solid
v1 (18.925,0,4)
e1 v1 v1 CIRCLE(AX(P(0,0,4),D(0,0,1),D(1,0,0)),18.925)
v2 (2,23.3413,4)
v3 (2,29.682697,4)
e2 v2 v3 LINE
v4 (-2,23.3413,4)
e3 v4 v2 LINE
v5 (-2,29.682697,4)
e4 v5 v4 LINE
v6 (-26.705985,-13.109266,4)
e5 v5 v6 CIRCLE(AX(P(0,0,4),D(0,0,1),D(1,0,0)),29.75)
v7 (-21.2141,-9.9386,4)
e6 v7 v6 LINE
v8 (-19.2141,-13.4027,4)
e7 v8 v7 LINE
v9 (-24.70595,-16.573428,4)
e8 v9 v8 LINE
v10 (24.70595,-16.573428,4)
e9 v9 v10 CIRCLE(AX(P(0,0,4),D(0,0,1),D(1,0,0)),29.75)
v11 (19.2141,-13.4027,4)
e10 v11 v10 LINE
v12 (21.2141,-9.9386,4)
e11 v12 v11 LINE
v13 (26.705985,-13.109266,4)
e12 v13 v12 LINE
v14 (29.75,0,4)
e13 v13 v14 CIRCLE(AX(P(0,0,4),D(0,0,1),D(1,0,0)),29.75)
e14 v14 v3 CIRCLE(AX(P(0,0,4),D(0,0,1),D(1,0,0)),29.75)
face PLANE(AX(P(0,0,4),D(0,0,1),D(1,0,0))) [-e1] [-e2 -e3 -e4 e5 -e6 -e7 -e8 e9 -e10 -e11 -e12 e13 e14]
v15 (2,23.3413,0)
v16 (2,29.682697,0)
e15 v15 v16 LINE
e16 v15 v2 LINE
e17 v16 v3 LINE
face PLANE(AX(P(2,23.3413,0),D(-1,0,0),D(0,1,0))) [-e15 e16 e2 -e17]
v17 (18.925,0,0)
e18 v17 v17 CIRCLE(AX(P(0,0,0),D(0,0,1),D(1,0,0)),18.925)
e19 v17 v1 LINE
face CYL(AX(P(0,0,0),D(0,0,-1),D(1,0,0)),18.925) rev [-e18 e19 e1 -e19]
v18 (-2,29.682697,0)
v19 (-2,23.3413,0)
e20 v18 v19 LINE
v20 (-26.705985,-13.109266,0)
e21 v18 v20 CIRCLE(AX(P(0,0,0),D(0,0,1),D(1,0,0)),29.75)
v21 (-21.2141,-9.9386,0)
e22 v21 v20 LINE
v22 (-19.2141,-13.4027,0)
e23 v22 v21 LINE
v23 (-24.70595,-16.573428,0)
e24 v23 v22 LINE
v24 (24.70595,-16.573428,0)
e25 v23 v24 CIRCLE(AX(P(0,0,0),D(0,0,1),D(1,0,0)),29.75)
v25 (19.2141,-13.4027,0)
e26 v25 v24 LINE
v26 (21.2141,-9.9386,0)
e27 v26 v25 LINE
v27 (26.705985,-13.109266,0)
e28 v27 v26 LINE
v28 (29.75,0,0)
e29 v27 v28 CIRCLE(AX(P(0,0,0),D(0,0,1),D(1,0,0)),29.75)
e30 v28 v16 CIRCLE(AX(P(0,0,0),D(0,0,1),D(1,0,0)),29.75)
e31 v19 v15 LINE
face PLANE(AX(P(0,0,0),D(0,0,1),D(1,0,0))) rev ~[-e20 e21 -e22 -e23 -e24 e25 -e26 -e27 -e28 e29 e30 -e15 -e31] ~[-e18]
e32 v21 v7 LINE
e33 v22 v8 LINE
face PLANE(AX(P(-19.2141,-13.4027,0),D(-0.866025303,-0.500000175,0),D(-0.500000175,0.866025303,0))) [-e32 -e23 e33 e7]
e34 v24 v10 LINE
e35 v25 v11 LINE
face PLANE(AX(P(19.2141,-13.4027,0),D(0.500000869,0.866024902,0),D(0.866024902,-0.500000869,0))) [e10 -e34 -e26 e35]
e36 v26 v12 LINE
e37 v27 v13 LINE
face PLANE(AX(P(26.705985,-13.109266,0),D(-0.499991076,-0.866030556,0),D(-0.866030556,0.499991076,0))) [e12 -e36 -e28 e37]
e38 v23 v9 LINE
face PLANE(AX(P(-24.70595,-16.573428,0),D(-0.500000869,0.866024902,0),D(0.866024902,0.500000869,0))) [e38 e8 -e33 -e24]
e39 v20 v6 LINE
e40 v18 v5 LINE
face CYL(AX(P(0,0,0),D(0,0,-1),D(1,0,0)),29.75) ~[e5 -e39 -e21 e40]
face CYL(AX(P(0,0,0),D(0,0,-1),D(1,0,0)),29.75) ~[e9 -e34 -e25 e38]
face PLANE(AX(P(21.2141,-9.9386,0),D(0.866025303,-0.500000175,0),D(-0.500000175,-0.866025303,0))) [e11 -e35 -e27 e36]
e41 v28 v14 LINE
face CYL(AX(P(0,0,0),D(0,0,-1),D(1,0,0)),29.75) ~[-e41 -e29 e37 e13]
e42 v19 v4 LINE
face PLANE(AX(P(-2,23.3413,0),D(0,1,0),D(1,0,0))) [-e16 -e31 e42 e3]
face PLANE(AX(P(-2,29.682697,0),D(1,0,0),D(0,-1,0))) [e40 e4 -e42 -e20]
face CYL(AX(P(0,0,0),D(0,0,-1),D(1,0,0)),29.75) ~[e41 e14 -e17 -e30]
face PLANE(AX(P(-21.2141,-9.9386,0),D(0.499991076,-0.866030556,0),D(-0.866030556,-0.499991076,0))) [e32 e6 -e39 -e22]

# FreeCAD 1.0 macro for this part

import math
import FreeCAD as App
import Part
import Sketcher
Q = App.Units.Quantity

doc = App.newDocument("Part")
body = doc.addObject("PartDesign::Body", "Body")

# Sketch on XY plane
sketch1 = body.newObject("Sketcher::SketchObject", "Sketch")
sketch1.AttachmentSupport = (doc.getObject("XY_Plane"), [""])
sketch1.MapMode = "FlatFace"
sketch1.addGeometry(Part.ArcOfCircle(Part.Circle(App.Vector(0, 0, 0), App.Vector(0, 0, 1), 29.8), math.radians(-26), math.radians(86)), False)
sketch1.addGeometry(Part.LineSegment(App.Vector(2, 29.7, 0), App.Vector(2, 23.3, 0)), False)
sketch1.addGeometry(Part.LineSegment(App.Vector(2, 23.3, 0), App.Vector(-2, 23.3, 0)), False)
sketch1.addGeometry(Part.LineSegment(App.Vector(-2, 23.3, 0), App.Vector(-2, 29.7, 0)), False)
sketch1.addGeometry(Part.ArcOfCircle(Part.Circle(App.Vector(0, 0, 0), App.Vector(0, 0, 1), 29.8), math.radians(94), math.radians(206)), False)
sketch1.addGeometry(Part.LineSegment(App.Vector(-26.7, -13.1, 0), App.Vector(-21.2, -9.9, 0)), False)
sketch1.addGeometry(Part.LineSegment(App.Vector(-21.2, -9.9, 0), App.Vector(-19.2, -13.4, 0)), False)
sketch1.addGeometry(Part.LineSegment(App.Vector(-19.2, -13.4, 0), App.Vector(-24.7, -16.6, 0)), False)
sketch1.addGeometry(Part.ArcOfCircle(Part.Circle(App.Vector(0, 0, 0), App.Vector(0, 0, 1), 29.8), math.radians(-146), math.radians(-34)), False)
sketch1.addGeometry(Part.LineSegment(App.Vector(24.7, -16.6, 0), App.Vector(19.2, -13.4, 0)), False)
sketch1.addGeometry(Part.LineSegment(App.Vector(19.2, -13.4, 0), App.Vector(21.2, -9.9, 0)), False)
sketch1.addGeometry(Part.LineSegment(App.Vector(21.2, -9.9, 0), App.Vector(26.7, -13.1, 0)), False)
sketch1.addGeometry(Part.Circle(App.Vector(0, 0, 0), App.Vector(0, 0, 1), 18.9), False)
sketch1.addConstraint(Sketcher.Constraint("Coincident", 0, 2, 1, 1))
sketch1.addConstraint(Sketcher.Constraint("Coincident", 1, 2, 2, 1))
sketch1.addConstraint(Sketcher.Constraint("Coincident", 2, 2, 3, 1))
sketch1.addConstraint(Sketcher.Constraint("Coincident", 3, 2, 4, 1))
sketch1.addConstraint(Sketcher.Constraint("Coincident", 4, 2, 5, 1))
sketch1.addConstraint(Sketcher.Constraint("Coincident", 5, 2, 6, 1))
sketch1.addConstraint(Sketcher.Constraint("Coincident", 6, 2, 7, 1))
sketch1.addConstraint(Sketcher.Constraint("Coincident", 7, 2, 8, 1))
sketch1.addConstraint(Sketcher.Constraint("Coincident", 8, 2, 9, 1))
sketch1.addConstraint(Sketcher.Constraint("Coincident", 9, 2, 10, 1))
sketch1.addConstraint(Sketcher.Constraint("Coincident", 10, 2, 11, 1))
sketch1.addConstraint(Sketcher.Constraint("Coincident", 11, 2, 0, 1))
sketch1.addConstraint(Sketcher.Constraint("Vertical", 1))
sketch1.addConstraint(Sketcher.Constraint("Horizontal", 2))
sketch1.addConstraint(Sketcher.Constraint("Vertical", 3))
sketch1.addConstraint(Sketcher.Constraint("Coincident", 0, 3, -1, 1))
sketch1.addConstraint(Sketcher.Constraint("Coincident", 4, 3, -1, 1))
sketch1.addConstraint(Sketcher.Constraint("Coincident", 8, 3, -1, 1))
sketch1.addConstraint(Sketcher.Constraint("Coincident", 12, 3, -1, 1))
sketch1.addConstraint(Sketcher.Constraint("Equal", 0, 4))
sketch1.addConstraint(Sketcher.Constraint("Equal", 4, 8))
sketch1.addConstraint(Sketcher.Constraint("Symmetric", 6, 2, 9, 2, -2))
sketch1.addConstraint(Sketcher.Constraint("Symmetric", 5, 2, 10, 2, -2))
sketch1.addConstraint(Sketcher.Constraint("Perpendicular", 5, 6))
sketch1.addConstraint(Sketcher.Constraint("Perpendicular", 6, 7))
sketch1.addConstraint(Sketcher.Constraint("Perpendicular", 9, 10))
sketch1.addConstraint(Sketcher.Constraint("Perpendicular", 10, 11))
sketch1.addConstraint(Sketcher.Constraint("Horizontal", 0, 2, 3, 2))
sketch1.addConstraint(Sketcher.Constraint("Equal", 5, 7))
sketch1.addConstraint(Sketcher.Constraint("Diameter", 12, 37.85))
sketch1.addConstraint(Sketcher.Constraint("Radius", 0, 29.75))
sketch1.addConstraint(Sketcher.Constraint("DistanceX", 2, 2, 2, 1, 4.0))
sketch1.addConstraint(Sketcher.Constraint("Angle", 5, Q("29.9994 deg")))
sketch1.addConstraint(Sketcher.Constraint("Distance", 6, 4.0))
sketch1.addConstraint(Sketcher.Constraint("DistanceX", 6, 2, 8, 2, 43.92))
sketch1.addConstraint(Sketcher.Constraint("DistanceY", 1, 2, 1, 1, 6.3414))
pad1 = body.newObject("PartDesign::Pad", "Pad")
pad1.Profile = sketch1
pad1.Length = 4

doc.recompute()
